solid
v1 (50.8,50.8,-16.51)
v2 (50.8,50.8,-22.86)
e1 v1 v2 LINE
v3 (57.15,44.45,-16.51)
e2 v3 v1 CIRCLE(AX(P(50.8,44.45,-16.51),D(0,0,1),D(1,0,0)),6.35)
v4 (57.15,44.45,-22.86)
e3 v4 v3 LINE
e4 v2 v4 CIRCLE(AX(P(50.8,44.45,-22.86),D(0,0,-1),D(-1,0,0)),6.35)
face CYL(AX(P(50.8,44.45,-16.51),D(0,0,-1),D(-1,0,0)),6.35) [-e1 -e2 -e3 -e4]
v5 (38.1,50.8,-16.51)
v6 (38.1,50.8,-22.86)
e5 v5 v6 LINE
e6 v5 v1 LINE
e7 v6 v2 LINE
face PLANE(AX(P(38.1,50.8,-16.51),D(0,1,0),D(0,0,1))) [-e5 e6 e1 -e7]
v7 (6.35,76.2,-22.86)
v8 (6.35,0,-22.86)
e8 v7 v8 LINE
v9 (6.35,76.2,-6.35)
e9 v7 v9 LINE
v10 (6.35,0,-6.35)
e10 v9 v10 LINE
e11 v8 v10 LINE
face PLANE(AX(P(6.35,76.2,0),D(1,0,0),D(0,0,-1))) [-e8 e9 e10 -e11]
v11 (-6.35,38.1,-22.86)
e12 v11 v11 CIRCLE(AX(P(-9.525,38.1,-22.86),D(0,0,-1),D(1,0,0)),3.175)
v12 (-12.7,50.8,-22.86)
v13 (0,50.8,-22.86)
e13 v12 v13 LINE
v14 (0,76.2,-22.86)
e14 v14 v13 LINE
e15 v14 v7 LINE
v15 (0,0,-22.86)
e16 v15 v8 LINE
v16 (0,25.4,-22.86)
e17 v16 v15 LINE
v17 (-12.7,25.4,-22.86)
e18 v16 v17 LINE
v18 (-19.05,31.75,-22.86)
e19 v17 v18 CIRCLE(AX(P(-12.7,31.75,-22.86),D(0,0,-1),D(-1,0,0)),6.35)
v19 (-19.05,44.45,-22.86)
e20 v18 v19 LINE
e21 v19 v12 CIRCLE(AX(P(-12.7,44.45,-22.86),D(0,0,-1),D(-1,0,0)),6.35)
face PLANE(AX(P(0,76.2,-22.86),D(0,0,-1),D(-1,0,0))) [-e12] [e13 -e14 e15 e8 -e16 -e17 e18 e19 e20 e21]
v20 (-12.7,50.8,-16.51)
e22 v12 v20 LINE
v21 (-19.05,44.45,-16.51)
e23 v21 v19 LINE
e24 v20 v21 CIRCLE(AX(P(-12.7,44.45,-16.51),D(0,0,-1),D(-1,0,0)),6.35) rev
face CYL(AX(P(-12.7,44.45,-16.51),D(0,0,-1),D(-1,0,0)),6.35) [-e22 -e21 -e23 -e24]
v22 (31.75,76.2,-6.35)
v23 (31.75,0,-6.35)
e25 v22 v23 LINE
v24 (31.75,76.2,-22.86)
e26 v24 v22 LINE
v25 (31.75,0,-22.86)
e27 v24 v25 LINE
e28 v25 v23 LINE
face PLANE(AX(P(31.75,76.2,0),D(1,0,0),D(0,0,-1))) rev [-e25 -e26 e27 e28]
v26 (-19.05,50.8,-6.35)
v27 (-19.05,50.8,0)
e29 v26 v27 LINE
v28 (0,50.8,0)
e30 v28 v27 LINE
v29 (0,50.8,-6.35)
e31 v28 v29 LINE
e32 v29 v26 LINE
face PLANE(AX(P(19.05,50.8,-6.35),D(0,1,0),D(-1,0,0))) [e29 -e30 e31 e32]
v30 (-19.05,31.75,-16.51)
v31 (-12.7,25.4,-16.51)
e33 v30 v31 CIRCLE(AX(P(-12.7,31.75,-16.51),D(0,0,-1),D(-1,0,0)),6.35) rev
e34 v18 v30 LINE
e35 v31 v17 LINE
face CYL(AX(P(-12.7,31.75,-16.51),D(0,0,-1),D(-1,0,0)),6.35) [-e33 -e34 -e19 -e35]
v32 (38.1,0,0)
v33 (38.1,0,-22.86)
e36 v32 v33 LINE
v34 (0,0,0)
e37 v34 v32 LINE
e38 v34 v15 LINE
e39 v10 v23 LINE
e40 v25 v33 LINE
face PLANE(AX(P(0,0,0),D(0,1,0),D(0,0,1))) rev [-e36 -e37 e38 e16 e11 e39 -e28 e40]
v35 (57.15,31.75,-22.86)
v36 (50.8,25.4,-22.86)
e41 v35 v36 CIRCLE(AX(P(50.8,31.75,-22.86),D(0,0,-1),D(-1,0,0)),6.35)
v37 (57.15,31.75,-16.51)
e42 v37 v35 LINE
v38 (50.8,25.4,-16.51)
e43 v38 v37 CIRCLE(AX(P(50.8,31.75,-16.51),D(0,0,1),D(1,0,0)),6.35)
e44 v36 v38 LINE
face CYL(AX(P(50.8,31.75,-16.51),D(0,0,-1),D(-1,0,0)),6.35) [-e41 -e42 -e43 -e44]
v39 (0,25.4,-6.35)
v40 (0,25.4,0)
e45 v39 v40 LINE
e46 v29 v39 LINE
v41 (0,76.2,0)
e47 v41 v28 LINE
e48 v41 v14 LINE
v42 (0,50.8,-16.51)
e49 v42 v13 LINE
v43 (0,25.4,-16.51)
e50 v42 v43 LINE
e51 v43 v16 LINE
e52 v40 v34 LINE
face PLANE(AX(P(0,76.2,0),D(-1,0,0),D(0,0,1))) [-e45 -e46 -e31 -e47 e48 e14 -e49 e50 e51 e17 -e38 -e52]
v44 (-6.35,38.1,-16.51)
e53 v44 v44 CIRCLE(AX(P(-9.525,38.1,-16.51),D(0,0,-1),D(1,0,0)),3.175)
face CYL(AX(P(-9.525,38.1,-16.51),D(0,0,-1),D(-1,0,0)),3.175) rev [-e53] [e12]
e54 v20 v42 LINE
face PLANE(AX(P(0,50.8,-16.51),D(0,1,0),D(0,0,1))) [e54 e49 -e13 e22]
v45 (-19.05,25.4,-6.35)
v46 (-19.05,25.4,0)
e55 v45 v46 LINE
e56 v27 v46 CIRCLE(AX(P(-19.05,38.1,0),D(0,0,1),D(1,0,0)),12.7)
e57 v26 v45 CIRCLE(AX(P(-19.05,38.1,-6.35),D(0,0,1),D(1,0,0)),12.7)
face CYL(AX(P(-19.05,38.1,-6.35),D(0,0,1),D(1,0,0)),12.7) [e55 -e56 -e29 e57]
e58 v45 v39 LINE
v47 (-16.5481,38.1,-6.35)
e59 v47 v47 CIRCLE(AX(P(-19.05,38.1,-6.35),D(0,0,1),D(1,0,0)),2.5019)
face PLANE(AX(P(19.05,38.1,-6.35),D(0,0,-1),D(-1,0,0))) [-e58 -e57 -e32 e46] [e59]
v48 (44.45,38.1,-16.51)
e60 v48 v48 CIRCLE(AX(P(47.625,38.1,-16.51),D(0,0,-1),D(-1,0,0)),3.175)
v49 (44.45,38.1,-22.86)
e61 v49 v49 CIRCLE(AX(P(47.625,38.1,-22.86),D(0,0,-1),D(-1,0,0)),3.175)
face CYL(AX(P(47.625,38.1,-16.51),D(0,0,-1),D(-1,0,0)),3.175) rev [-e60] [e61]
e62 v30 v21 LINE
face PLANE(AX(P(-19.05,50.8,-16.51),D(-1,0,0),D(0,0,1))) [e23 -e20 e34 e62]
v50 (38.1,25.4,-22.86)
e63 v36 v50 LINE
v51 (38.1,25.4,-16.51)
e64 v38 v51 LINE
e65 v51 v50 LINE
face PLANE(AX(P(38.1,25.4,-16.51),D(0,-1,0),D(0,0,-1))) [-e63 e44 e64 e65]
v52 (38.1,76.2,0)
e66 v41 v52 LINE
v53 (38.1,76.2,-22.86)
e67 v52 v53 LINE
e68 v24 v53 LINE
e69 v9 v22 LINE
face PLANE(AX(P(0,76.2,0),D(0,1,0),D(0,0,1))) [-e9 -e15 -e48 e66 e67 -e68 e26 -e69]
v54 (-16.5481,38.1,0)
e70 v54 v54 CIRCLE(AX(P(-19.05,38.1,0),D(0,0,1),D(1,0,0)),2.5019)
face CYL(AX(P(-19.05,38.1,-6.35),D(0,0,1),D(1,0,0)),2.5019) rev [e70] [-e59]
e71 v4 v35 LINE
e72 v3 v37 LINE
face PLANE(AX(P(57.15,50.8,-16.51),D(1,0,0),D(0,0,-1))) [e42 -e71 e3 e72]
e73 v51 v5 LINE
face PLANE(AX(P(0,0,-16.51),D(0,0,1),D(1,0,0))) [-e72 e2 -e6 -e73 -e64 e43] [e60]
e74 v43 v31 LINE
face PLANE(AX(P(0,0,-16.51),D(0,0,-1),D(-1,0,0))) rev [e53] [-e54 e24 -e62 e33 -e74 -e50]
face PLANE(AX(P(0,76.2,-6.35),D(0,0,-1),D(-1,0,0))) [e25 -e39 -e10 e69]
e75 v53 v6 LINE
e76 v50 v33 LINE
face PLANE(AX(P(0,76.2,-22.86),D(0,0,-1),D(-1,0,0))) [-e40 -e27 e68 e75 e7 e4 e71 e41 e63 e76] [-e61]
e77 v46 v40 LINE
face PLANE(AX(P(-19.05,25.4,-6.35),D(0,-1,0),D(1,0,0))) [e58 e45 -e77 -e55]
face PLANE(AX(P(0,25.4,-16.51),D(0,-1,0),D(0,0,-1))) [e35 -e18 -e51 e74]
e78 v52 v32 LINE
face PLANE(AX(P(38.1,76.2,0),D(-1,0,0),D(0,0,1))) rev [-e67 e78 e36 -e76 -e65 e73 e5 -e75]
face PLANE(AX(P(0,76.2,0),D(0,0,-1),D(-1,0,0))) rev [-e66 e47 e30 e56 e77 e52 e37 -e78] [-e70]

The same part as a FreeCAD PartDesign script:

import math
import FreeCAD as App
import Part
import Sketcher
Q = App.Units.Quantity


def edges_at(feature, points):
    """Names of the edges that pass closest to the given points."""
    edges = feature.Shape.Edges
    near = lambda p: min(range(len(edges)), key=lambda i: edges[i].distToShape(Part.Vertex(*p))[0])
    return sorted({f"Edge{near(p) + 1}" for p in points})

doc = App.newDocument("Part")
params = doc.addObject("Spreadsheet::Sheet", "Params")
for row, (alias, value) in enumerate([
    ("sketch1_width", "1 in"),
    ("sketch1_width2", "1.5 in"),
    ("sketch1_height", "0.9 in"),
    ("sketch1_height2", "0.65 in"),
    ("pad1_length", "3 in"),
    ("sketch2_radius", "0.5 in"),
    ("sketch2_diameter", "0.197 in"),
    ("sketch2_width", "1.5 in"),
    ("pad2_length", "0.25 in"),
    ("sketch3_diameter", "0.25 in"),
    ("sketch3_height", "1 in"),
    ("sketch3_width", "0.75 in"),
    ("pad3_length", "0.25 in"),
    ("fillet_radius", "0.25 in"),
], start=1):
    params.set(f"A{row}", alias)
    params.set(f"B{row}", "=" + value)
    params.setAlias(f"B{row}", alias)

body = doc.addObject("PartDesign::Body", "Body")

# Sketch on XZ plane
sketch1 = body.newObject("Sketcher::SketchObject", "Sketch")
sketch1.AttachmentSupport = (doc.getObject("XZ_Plane"), [""])
sketch1.MapMode = "FlatFace"
sketch1.addGeometry([
    Part.LineSegment(App.Vector(0, -23, 0), App.Vector(0, 0, 0)),  # 0
    Part.LineSegment(App.Vector(0, 0, 0), App.Vector(38, 0, 0)),  # 1
    Part.LineSegment(App.Vector(38, 0, 0), App.Vector(38, -23, 0)),  # 2
    Part.LineSegment(App.Vector(38, -23, 0), App.Vector(32, -23, 0)),  # 3
    Part.LineSegment(App.Vector(32, -23, 0), App.Vector(32, -6, 0)),  # 4
    Part.LineSegment(App.Vector(32, -6, 0), App.Vector(6, -6, 0)),  # 5
    Part.LineSegment(App.Vector(6, -6, 0), App.Vector(6, -23, 0)),  # 6
    Part.LineSegment(App.Vector(6, -23, 0), App.Vector(0, -23, 0)),  # 7
], False)
sketch1.addConstraint([
    Sketcher.Constraint("Coincident", 0, 2, 1, 1),
    Sketcher.Constraint("Coincident", 1, 2, 2, 1),
    Sketcher.Constraint("Coincident", 2, 2, 3, 1),
    Sketcher.Constraint("Coincident", 3, 2, 4, 1),
    Sketcher.Constraint("Coincident", 4, 2, 5, 1),
    Sketcher.Constraint("Coincident", 5, 2, 6, 1),
    Sketcher.Constraint("Coincident", 6, 2, 7, 1),
    Sketcher.Constraint("Coincident", 7, 2, 0, 1),
    Sketcher.Constraint("Vertical", 0),
    Sketcher.Constraint("Horizontal", 1),
    Sketcher.Constraint("Vertical", 2),
    Sketcher.Constraint("Horizontal", 3),
    Sketcher.Constraint("Vertical", 4),
    Sketcher.Constraint("Horizontal", 5),
    Sketcher.Constraint("Vertical", 6),
    Sketcher.Constraint("Horizontal", 7),
    Sketcher.Constraint("Coincident", 0, 2, -1, 1),
    Sketcher.Constraint("Horizontal", 3, 2, 6, 2),
    Sketcher.Constraint("Equal", 3, 7),
    Sketcher.Constraint("DistanceX", 5, 2, 5, 1, Q("1 in")),
    Sketcher.Constraint("DistanceX", 1, 1, 1, 2, Q("1.5 in")),
    Sketcher.Constraint("DistanceY", 0, 1, 0, 2, Q("0.9 in")),
    Sketcher.Constraint("DistanceY", 4, 1, 4, 2, Q("0.65 in")),
])
sketch1.setExpression("Constraints[19]", "Params.sketch1_width")
sketch1.setExpression("Constraints[20]", "Params.sketch1_width2")
sketch1.setExpression("Constraints[21]", "Params.sketch1_height")
sketch1.setExpression("Constraints[22]", "Params.sketch1_height2")
pad1 = body.newObject("PartDesign::Pad", "Pad")
pad1.Profile = sketch1
pad1.setExpression("Length", "Params.pad1_length")
pad1.Reversed = True

# Sketch on XY plane
sketch2 = body.newObject("Sketcher::SketchObject", "Sketch001")
sketch2.AttachmentSupport = (doc.getObject("XY_Plane"), [""])
sketch2.MapMode = "FlatFace"
sketch2.addGeometry([
    Part.LineSegment(App.Vector(19.1, 50.8, 0), App.Vector(-19.1, 50.8, 0)),  # 0
    Part.ArcOfCircle(Part.Circle(App.Vector(-19.1, 38.1, 0), App.Vector(0, 0, 1), 12.7), math.radians(90), math.radians(270)),  # 1
    Part.LineSegment(App.Vector(-19.1, 25.4, 0), App.Vector(19.1, 25.4, 0)),  # 2
    Part.ArcOfCircle(Part.Circle(App.Vector(19.1, 38.1, 0), App.Vector(0, 0, 1), 12.7), math.radians(-90), math.radians(90)),  # 3
    Part.Circle(App.Vector(-19.1, 38.1, 0), App.Vector(0, 0, 1), 2.5),  # 4
], False)
sketch2.addConstraint([
    Sketcher.Constraint("Tangent", 0, 2, 1, 1),
    Sketcher.Constraint("Tangent", 1, 2, 2, 1),
    Sketcher.Constraint("Tangent", 2, 2, 3, 1),
    Sketcher.Constraint("Tangent", 3, 2, 0, 1),
    Sketcher.Constraint("Horizontal", 0),
    Sketcher.Constraint("Horizontal", 2),
    Sketcher.Constraint("Coincident", 4, 3, 1, 3),
    Sketcher.Constraint("Radius", 1, Q("0.5 in")),
    Sketcher.Constraint("Diameter", 4, Q("0.197 in")),
    Sketcher.Constraint("DistanceX", 0, 2, 0, 1, Q("1.5 in")),
    Sketcher.Constraint("DistanceY", -1, 1, 0, 2, Q("2 in")),
    Sketcher.Constraint("DistanceX", 1, 3, -1, 1, Q("0.75 in")),
])
sketch2.setExpression("Constraints[7]", "Params.sketch2_radius")
sketch2.setExpression("Constraints[8]", "Params.sketch2_diameter")
sketch2.setExpression("Constraints[9]", "Params.sketch2_width")
pad2 = body.newObject("PartDesign::Pad", "Pad001")
pad2.Profile = sketch2
pad2.setExpression("Length", "Params.pad2_length")
pad2.Reversed = True

# Sketch on XY plane
sketch3 = body.newObject("Sketcher::SketchObject", "Sketch002")
sketch3.AttachmentSupport = (doc.getObject("XY_Plane"), [""])
sketch3.MapMode = "FlatFace"
sketch3.AttachmentOffset = App.Placement(App.Vector(0, 0, -0.9 * 25.4), App.Rotation())
sketch3.addGeometry([
    Part.LineSegment(App.Vector(57.1, 50.8, 0), App.Vector(57.1, 25.4, 0)),  # 0
    Part.LineSegment(App.Vector(57.1, 25.4, 0), App.Vector(38.1, 25.4, 0)),  # 1
    Part.LineSegment(App.Vector(38.1, 25.4, 0), App.Vector(38.1, 50.8, 0)),  # 2
    Part.LineSegment(App.Vector(38.1, 50.8, 0), App.Vector(57.1, 50.8, 0)),  # 3
    Part.Circle(App.Vector(47.6, 38.1, 0), App.Vector(0, 0, 1), 3.2),  # 4
    Part.LineSegment(App.Vector(0, 50.8, 0), App.Vector(0, 25.4, 0)),  # 5
    Part.LineSegment(App.Vector(0, 25.4, 0), App.Vector(-19.1, 25.4, 0)),  # 6
    Part.LineSegment(App.Vector(-19.1, 25.4, 0), App.Vector(-19.1, 50.8, 0)),  # 7
    Part.LineSegment(App.Vector(-19.1, 50.8, 0), App.Vector(0, 50.8, 0)),  # 8
    Part.Circle(App.Vector(-9.5, 38.1, 0), App.Vector(0, 0, 1), 3.2),  # 9
], False)
sketch3.addConstraint([
    Sketcher.Constraint("Coincident", 0, 2, 1, 1),
    Sketcher.Constraint("Coincident", 1, 2, 2, 1),
    Sketcher.Constraint("Coincident", 2, 2, 3, 1),
    Sketcher.Constraint("Coincident", 3, 2, 0, 1),
    Sketcher.Constraint("Coincident", 5, 2, 6, 1),
    Sketcher.Constraint("Coincident", 6, 2, 7, 1),
    Sketcher.Constraint("Coincident", 7, 2, 8, 1),
    Sketcher.Constraint("Coincident", 8, 2, 5, 1),
    Sketcher.Constraint("Vertical", 0),
    Sketcher.Constraint("Horizontal", 1),
    Sketcher.Constraint("Vertical", 2),
    Sketcher.Constraint("Horizontal", 3),
    Sketcher.Constraint("Vertical", 5),
    Sketcher.Constraint("Horizontal", 6),
    Sketcher.Constraint("Vertical", 7),
    Sketcher.Constraint("Horizontal", 8),
    Sketcher.Constraint("Equal", 4, 9),
    Sketcher.Constraint("PointOnObject", 5, 2, -2),
    Sketcher.Constraint("Horizontal", 4, 3, 9, 3),
    Sketcher.Constraint("Horizontal", 1, 2, 5, 2),
    Sketcher.Constraint("Horizontal", 3, 2, 7, 2),
    Sketcher.Constraint("Equal", 3, 6),
    Sketcher.Constraint("Diameter", 4, Q("0.25 in")),
    Sketcher.Constraint("DistanceY", 0, 2, 0, 1, Q("1 in")),
    Sketcher.Constraint("DistanceY", -1, 1, 0, 2, Q("1 in")),
    Sketcher.Constraint("DistanceX", 1, 2, 1, 1, Q("0.75 in")),
    Sketcher.Constraint("DistanceY", -1, 1, 4, 3, Q("1.5 in")),
    Sketcher.Constraint("DistanceX", -1, 1, 1, 2, Q("1.5 in")),
    Sketcher.Constraint("DistanceX", 9, 3, 4, 3, Q("2.25 in")),
    Sketcher.Constraint("DistanceX", -1, 1, 4, 3, Q("1.875 in")),
])
sketch3.setExpression("Constraints[22]", "Params.sketch3_diameter")
sketch3.setExpression("Constraints[23]", "Params.sketch3_height")
sketch3.setExpression("Constraints[25]", "Params.sketch3_width")
pad3 = body.newObject("PartDesign::Pad", "Pad002")
pad3.Profile = sketch3
pad3.setExpression("Length", "Params.pad3_length")
doc.recompute()

fillet = body.newObject("PartDesign::Fillet", "Fillet")
fillet.Base = (pad3, edges_at(pad3, [
    (57.15, 25.4, -19.685),
    (57.15, 50.8, -19.685),
    (-19.05, 50.8, -19.685),
    (-19.05, 25.4, -19.685),
]))
fillet.setExpression("Radius", "Params.fillet_radius")

doc.recompute()
